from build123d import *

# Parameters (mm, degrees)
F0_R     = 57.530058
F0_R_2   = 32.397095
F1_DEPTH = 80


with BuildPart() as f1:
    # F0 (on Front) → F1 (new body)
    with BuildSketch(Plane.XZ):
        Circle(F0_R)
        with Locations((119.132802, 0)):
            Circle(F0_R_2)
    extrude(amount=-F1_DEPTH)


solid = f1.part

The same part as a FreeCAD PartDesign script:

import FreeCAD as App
import Part
import Sketcher
from FreeCAD import Vector

doc = App.newDocument("Part")
body = doc.addObject("PartDesign::Body", "Body")
body.AllowCompound = True

sketch1 = body.newObject("Sketcher::SketchObject", "Sketch")
sketch1.AttachmentSupport = (doc.getObject("XZ_Plane"), [""])
sketch1.MapMode = "FlatFace"
sketch1.addGeometry([
    Part.Circle(Vector(0, 0, 0), Vector(0, 0, 1), 58),
    Part.Circle(Vector(119, 0, 0), Vector(0, 0, 1), 32),
], False)
sketch1.addConstraint([
    Sketcher.Constraint("Coincident", 0, 3, -1, 1),
    Sketcher.Constraint("PointOnObject", 1, 3, -1),
    Sketcher.Constraint("Diameter", 1, 64.79419),
    Sketcher.Constraint("Diameter", 0, 115.060116),
    Sketcher.Constraint("DistanceX", -1, 1, 1, 3, 119.132802),
])
pad1 = body.newObject("PartDesign::Pad", "Pad")
pad1.Profile = sketch1
pad1.Length = 80
pad1.Reversed = True

doc.recompute()
